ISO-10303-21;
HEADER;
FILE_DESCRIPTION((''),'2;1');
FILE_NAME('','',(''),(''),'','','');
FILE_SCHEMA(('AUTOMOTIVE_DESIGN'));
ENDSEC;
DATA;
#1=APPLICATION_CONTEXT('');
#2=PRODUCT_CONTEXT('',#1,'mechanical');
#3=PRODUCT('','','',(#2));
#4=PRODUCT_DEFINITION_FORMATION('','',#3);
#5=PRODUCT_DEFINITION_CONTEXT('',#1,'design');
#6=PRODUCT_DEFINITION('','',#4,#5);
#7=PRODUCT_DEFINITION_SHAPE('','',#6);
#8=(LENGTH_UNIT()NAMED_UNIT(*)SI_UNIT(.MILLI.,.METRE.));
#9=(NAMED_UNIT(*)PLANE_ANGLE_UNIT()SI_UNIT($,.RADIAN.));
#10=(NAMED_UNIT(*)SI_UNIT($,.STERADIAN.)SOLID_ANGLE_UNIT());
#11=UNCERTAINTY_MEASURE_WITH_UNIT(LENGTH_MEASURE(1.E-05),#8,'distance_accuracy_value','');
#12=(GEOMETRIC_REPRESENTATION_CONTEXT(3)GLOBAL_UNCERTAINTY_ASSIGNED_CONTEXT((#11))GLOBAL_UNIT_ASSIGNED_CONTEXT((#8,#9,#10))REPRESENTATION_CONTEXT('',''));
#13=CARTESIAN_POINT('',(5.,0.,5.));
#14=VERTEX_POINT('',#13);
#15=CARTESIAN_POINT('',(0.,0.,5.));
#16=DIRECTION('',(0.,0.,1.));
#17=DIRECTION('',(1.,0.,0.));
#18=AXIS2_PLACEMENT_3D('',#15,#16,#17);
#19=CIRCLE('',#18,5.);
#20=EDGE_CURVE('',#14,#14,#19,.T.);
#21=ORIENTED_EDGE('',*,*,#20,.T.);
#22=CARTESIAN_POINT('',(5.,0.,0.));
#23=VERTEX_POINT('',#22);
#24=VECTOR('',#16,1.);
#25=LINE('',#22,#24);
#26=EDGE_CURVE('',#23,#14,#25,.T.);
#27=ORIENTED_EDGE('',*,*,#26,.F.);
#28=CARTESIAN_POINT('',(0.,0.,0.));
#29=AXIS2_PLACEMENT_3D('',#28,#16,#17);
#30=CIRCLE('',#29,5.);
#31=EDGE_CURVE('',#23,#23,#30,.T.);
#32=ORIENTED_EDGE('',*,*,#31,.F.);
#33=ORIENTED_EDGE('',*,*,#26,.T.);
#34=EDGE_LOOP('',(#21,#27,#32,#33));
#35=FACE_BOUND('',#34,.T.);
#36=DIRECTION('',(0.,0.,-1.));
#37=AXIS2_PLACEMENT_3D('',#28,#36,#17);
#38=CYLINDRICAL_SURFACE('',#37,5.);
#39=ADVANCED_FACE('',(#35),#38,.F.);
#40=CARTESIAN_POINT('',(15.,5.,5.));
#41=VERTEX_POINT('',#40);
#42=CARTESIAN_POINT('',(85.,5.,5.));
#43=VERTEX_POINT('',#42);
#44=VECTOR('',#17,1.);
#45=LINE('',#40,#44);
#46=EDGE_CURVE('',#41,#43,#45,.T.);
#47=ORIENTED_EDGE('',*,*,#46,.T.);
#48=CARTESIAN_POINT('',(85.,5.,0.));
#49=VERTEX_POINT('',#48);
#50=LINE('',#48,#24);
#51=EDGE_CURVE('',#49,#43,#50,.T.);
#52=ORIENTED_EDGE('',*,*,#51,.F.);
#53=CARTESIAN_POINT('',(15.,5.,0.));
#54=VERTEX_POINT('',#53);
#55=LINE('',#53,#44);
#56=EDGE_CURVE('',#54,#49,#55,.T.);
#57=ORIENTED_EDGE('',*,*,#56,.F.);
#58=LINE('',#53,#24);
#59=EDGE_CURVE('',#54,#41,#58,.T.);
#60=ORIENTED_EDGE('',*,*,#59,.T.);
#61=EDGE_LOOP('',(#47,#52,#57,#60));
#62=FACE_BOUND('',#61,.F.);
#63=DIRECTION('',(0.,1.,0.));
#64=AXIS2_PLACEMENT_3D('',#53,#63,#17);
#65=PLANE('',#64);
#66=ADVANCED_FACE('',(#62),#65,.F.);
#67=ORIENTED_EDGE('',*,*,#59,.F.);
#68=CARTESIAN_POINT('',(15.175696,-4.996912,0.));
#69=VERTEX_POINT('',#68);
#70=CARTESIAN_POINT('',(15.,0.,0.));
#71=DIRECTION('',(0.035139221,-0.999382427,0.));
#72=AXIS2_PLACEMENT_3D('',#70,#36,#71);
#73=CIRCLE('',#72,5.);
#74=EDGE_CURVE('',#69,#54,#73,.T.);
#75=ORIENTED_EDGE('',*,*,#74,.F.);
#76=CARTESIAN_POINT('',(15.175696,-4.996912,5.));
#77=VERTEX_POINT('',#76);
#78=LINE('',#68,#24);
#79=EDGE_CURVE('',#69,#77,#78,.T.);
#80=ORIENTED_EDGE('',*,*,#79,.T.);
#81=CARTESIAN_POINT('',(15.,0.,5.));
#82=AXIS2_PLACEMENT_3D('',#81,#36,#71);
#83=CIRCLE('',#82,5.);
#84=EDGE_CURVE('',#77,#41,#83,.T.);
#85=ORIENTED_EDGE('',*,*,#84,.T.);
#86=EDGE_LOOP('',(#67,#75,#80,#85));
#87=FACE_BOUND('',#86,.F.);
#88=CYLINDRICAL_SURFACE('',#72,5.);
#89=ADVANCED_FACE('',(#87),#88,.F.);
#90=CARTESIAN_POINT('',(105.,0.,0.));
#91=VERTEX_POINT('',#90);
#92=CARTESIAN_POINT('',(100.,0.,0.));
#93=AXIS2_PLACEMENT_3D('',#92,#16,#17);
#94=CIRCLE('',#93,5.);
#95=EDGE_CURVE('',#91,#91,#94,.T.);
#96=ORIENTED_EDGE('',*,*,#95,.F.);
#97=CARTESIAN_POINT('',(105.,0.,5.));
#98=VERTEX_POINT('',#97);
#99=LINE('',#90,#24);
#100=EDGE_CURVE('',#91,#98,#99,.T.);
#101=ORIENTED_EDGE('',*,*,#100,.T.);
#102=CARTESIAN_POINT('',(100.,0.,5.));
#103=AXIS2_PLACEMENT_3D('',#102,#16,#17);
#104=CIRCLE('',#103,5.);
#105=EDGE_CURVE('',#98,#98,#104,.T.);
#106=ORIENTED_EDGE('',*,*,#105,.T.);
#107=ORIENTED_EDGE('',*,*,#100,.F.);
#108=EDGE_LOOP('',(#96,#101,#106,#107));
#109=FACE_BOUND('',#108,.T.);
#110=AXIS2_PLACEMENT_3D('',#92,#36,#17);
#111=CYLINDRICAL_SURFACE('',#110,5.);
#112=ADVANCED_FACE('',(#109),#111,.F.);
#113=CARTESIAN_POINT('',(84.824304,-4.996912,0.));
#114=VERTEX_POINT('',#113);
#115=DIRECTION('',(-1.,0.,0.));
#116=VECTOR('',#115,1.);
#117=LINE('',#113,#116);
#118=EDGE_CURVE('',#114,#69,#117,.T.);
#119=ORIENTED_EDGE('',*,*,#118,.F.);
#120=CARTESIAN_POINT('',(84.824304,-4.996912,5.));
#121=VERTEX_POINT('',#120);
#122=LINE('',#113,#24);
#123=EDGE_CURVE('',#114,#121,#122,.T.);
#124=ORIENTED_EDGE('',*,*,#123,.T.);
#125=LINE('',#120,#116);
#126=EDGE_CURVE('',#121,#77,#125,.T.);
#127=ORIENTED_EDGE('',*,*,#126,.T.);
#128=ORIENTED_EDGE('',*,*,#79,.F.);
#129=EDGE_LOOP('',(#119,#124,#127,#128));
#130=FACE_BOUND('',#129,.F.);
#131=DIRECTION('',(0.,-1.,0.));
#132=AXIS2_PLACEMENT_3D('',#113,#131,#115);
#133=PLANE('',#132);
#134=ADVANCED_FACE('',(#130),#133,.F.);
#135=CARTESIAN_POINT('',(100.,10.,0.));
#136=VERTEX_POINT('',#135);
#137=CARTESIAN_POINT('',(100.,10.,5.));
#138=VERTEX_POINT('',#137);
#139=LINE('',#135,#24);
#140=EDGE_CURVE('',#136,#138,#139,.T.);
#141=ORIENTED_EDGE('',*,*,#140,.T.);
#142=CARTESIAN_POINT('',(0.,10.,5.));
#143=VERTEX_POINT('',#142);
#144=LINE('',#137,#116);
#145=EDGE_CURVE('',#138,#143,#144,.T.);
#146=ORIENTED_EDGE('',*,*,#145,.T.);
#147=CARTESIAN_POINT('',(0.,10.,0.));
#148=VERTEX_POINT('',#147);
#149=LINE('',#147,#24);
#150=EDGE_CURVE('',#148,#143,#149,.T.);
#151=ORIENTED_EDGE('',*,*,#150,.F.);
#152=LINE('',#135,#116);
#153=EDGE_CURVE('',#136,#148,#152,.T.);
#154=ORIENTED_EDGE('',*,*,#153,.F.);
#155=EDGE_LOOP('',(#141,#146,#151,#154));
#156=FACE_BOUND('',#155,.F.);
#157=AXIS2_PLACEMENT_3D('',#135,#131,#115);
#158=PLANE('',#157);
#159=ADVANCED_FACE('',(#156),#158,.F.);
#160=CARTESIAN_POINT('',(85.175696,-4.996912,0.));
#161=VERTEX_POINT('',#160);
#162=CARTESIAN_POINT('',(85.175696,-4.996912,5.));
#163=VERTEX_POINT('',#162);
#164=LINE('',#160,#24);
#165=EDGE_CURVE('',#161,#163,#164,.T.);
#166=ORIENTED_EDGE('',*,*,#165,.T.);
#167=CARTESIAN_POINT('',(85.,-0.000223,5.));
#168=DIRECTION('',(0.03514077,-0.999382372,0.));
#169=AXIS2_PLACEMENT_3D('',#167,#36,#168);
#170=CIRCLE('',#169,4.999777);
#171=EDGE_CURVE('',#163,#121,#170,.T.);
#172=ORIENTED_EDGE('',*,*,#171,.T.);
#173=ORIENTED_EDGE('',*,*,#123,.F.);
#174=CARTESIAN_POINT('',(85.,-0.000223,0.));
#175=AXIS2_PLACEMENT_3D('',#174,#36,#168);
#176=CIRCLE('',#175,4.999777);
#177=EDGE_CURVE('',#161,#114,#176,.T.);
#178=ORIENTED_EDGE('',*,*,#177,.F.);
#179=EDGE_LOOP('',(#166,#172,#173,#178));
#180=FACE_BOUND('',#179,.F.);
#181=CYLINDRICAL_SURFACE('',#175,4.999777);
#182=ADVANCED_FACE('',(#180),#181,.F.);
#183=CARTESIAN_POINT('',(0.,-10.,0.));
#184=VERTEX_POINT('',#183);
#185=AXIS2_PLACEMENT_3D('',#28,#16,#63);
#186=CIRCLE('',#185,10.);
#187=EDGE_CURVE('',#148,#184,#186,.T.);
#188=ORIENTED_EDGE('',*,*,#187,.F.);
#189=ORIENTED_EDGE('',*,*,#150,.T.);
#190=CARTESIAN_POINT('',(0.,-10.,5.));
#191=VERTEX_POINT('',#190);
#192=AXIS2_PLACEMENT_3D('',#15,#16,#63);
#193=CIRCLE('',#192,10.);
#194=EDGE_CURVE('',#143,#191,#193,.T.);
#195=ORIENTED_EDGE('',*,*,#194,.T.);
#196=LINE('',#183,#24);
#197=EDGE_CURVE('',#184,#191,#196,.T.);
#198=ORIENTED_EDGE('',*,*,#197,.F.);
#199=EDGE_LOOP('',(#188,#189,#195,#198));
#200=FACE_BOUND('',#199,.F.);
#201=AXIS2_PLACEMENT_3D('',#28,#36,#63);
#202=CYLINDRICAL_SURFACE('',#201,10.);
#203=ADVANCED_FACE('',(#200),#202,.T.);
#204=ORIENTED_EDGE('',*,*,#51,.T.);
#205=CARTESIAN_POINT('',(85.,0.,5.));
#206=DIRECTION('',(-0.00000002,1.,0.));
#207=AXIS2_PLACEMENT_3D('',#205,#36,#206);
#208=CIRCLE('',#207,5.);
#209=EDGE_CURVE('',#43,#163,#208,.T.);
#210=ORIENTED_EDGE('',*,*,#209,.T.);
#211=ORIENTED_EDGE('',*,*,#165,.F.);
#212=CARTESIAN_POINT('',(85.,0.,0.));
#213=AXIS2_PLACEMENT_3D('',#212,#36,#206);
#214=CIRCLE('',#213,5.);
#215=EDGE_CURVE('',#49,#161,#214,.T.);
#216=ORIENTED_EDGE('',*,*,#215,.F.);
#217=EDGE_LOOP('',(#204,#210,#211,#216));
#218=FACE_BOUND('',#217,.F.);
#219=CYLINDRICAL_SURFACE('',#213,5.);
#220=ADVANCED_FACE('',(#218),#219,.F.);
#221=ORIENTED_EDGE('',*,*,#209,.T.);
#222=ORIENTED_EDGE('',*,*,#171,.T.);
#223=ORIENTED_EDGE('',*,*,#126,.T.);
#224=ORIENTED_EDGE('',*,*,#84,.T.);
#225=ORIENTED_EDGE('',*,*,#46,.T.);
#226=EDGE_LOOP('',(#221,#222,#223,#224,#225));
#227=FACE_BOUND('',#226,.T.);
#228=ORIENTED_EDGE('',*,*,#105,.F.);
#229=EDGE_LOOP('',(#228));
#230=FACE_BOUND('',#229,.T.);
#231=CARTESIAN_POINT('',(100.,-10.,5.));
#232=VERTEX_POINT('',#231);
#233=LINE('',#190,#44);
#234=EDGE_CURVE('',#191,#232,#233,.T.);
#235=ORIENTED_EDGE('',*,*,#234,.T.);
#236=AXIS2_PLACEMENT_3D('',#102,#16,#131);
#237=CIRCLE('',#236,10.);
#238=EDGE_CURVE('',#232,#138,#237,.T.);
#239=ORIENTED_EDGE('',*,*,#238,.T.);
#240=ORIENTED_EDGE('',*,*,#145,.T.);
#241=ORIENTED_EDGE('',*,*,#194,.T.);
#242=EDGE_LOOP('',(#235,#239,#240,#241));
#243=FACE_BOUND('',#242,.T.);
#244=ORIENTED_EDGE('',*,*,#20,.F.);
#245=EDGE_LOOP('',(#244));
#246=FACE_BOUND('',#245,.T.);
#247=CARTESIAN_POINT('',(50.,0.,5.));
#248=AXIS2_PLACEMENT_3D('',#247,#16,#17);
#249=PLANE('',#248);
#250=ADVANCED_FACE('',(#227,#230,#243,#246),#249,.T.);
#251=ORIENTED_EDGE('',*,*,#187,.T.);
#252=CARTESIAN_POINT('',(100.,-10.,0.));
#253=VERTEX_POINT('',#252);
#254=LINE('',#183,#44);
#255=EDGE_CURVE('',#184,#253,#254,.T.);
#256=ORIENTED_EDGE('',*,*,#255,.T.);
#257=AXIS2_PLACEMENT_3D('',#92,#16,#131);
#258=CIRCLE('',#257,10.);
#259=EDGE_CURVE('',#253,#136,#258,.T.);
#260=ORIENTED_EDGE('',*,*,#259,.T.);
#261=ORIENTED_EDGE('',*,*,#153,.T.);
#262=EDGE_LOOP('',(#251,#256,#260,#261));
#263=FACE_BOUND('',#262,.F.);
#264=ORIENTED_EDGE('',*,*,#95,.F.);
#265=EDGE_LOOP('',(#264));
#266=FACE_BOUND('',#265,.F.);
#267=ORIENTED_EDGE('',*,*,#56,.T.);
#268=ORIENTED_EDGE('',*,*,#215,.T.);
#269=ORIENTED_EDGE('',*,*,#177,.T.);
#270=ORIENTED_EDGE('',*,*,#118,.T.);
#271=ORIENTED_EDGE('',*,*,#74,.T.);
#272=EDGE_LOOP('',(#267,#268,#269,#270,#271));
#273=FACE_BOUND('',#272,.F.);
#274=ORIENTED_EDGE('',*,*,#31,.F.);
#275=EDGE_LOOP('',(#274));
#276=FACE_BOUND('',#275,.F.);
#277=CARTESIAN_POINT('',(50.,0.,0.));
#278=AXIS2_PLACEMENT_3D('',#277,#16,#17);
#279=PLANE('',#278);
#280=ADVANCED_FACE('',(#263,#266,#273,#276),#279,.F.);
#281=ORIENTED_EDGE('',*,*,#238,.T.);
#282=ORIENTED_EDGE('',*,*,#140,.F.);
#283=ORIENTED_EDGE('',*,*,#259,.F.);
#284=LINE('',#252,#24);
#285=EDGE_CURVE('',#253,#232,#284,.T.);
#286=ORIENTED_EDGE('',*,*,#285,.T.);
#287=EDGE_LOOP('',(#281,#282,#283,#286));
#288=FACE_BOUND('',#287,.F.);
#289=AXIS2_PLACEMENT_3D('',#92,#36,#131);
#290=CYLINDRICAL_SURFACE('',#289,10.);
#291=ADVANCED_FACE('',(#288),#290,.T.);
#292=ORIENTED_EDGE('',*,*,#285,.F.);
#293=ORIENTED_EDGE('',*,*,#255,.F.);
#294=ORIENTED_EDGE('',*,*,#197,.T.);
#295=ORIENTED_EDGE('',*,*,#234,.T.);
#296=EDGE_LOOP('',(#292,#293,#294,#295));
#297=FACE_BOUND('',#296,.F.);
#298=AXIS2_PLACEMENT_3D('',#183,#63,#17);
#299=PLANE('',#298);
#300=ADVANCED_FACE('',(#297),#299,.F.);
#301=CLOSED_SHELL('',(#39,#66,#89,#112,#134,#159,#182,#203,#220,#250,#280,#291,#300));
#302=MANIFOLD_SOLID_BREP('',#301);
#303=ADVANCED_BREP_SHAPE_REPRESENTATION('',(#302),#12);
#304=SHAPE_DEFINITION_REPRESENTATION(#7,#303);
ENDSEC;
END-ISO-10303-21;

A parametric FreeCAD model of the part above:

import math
import FreeCAD as App
import Part
import Sketcher
Q = App.Units.Quantity

doc = App.newDocument("Part")
body = doc.addObject("PartDesign::Body", "Body")

# Sketch on XY plane
sketch1 = body.newObject("Sketcher::SketchObject", "Sketch")
sketch1.AttachmentSupport = (doc.getObject("XY_Plane"), [""])
sketch1.MapMode = "FlatFace"
sketch1.addGeometry([
    Part.LineSegment(App.Vector(100, 10, 0), App.Vector(0, 10, 0)),  # 0
    Part.ArcOfCircle(Part.Circle(App.Vector(0, 0, 0), App.Vector(0, 0, 1), 10), math.radians(90), math.radians(270)),  # 1
    Part.LineSegment(App.Vector(0, -10, 0), App.Vector(100, -10, 0)),  # 2
    Part.ArcOfCircle(Part.Circle(App.Vector(100, 0, 0), App.Vector(0, 0, 1), 10), math.radians(-90), math.radians(90)),  # 3
    Part.Circle(App.Vector(0, 0, 0), App.Vector(0, 0, 1), 5),  # 4
    Part.LineSegment(App.Vector(84.824304, -4.996912, 0), App.Vector(15.175696, -4.996912, 0)),  # 5
    Part.ArcOfCircle(Part.Circle(App.Vector(15, 0, 0), App.Vector(0, 0, 1), 5), math.radians(89.999999), math.radians(272.013744)),  # 6
    Part.LineSegment(App.Vector(15, 5, 0), App.Vector(85, 5, 0)),  # 7
    Part.ArcOfCircle(Part.Circle(App.Vector(85, 0, 0), App.Vector(0, 0, 1), 5), math.radians(-87.986259), math.radians(90.000001)),  # 8
    Part.ArcOfCircle(Part.Circle(App.Vector(85, -0.000223, 0), App.Vector(0, 0, 1), 4.999777), math.radians(-92.013832), math.radians(-87.986168)),  # 9
    Part.Circle(App.Vector(100, 0, 0), App.Vector(0, 0, 1), 5),  # 10
], False)
sketch1.addConstraint([
    Sketcher.Constraint("Coincident", 0, 2, 1, 1),
    Sketcher.Constraint("Coincident", 1, 2, 2, 1),
    Sketcher.Constraint("Coincident", 2, 2, 3, 1),
    Sketcher.Constraint("Coincident", 3, 2, 0, 1),
    Sketcher.Constraint("Coincident", 5, 2, 6, 2),
    Sketcher.Constraint("Coincident", 6, 1, 7, 1),
    Sketcher.Constraint("Coincident", 7, 2, 8, 2),
    Sketcher.Constraint("Coincident", 8, 1, 9, 2),
    Sketcher.Constraint("Coincident", 9, 1, 5, 1),
    Sketcher.Constraint("Horizontal", 0),
    Sketcher.Constraint("Horizontal", 2),
    Sketcher.Constraint("Horizontal", 5),
    Sketcher.Constraint("Horizontal", 7),
    Sketcher.Constraint("Coincident", 1, 3, -1, 1),
    Sketcher.Constraint("Coincident", 4, 3, -1, 1),
    Sketcher.Constraint("Coincident", 10, 3, 3, 3),
    Sketcher.Constraint("PointOnObject", 6, 3, -1),
    Sketcher.Constraint("PointOnObject", 8, 3, -1),
    Sketcher.Constraint("PointOnObject", 0, 2, -2),
    Sketcher.Constraint("PointOnObject", 1, 2, -2),
    Sketcher.Constraint("Diameter", 4, Q("10 mm")),
    Sketcher.Constraint("Diameter", 10, Q("10 mm")),
    Sketcher.Constraint("Radius", 1, Q("10 mm")),
    Sketcher.Constraint("Radius", 6, Q("5 mm")),
    Sketcher.Constraint("DistanceX", 0, 2, 0, 1, Q("100 mm")),
    Sketcher.Constraint("DistanceX", 2, 1, 2, 2, Q("100 mm")),
    Sketcher.Constraint("DistanceX", 7, 1, 7, 2, Q("70 mm")),
    Sketcher.Constraint("DistanceX", -1, 1, 3, 3, Q("100 mm")),
    Sketcher.Constraint("DistanceX", -1, 1, 6, 3, Q("15 mm")),
    Sketcher.Constraint("DistanceX", -1, 1, 8, 3, Q("85 mm")),
    Sketcher.Constraint("DistanceX", -1, 1, 9, 3, Q("85 mm")),
    Sketcher.Constraint("DistanceX", -1, 1, 6, 1, Q("15 mm")),
    Sketcher.Constraint("Radius", 9, Q("4.999777 mm")),
    Sketcher.Constraint("DistanceX", 5, 2, 5, 1, Q("69.648608 mm")),
    Sketcher.Constraint("DistanceY", 8, 1, -1, 1, Q("4.996912 mm")),
])
pad1 = body.newObject("PartDesign::Pad", "Pad")
pad1.Profile = sketch1
pad1.Length = 5

doc.recompute()
